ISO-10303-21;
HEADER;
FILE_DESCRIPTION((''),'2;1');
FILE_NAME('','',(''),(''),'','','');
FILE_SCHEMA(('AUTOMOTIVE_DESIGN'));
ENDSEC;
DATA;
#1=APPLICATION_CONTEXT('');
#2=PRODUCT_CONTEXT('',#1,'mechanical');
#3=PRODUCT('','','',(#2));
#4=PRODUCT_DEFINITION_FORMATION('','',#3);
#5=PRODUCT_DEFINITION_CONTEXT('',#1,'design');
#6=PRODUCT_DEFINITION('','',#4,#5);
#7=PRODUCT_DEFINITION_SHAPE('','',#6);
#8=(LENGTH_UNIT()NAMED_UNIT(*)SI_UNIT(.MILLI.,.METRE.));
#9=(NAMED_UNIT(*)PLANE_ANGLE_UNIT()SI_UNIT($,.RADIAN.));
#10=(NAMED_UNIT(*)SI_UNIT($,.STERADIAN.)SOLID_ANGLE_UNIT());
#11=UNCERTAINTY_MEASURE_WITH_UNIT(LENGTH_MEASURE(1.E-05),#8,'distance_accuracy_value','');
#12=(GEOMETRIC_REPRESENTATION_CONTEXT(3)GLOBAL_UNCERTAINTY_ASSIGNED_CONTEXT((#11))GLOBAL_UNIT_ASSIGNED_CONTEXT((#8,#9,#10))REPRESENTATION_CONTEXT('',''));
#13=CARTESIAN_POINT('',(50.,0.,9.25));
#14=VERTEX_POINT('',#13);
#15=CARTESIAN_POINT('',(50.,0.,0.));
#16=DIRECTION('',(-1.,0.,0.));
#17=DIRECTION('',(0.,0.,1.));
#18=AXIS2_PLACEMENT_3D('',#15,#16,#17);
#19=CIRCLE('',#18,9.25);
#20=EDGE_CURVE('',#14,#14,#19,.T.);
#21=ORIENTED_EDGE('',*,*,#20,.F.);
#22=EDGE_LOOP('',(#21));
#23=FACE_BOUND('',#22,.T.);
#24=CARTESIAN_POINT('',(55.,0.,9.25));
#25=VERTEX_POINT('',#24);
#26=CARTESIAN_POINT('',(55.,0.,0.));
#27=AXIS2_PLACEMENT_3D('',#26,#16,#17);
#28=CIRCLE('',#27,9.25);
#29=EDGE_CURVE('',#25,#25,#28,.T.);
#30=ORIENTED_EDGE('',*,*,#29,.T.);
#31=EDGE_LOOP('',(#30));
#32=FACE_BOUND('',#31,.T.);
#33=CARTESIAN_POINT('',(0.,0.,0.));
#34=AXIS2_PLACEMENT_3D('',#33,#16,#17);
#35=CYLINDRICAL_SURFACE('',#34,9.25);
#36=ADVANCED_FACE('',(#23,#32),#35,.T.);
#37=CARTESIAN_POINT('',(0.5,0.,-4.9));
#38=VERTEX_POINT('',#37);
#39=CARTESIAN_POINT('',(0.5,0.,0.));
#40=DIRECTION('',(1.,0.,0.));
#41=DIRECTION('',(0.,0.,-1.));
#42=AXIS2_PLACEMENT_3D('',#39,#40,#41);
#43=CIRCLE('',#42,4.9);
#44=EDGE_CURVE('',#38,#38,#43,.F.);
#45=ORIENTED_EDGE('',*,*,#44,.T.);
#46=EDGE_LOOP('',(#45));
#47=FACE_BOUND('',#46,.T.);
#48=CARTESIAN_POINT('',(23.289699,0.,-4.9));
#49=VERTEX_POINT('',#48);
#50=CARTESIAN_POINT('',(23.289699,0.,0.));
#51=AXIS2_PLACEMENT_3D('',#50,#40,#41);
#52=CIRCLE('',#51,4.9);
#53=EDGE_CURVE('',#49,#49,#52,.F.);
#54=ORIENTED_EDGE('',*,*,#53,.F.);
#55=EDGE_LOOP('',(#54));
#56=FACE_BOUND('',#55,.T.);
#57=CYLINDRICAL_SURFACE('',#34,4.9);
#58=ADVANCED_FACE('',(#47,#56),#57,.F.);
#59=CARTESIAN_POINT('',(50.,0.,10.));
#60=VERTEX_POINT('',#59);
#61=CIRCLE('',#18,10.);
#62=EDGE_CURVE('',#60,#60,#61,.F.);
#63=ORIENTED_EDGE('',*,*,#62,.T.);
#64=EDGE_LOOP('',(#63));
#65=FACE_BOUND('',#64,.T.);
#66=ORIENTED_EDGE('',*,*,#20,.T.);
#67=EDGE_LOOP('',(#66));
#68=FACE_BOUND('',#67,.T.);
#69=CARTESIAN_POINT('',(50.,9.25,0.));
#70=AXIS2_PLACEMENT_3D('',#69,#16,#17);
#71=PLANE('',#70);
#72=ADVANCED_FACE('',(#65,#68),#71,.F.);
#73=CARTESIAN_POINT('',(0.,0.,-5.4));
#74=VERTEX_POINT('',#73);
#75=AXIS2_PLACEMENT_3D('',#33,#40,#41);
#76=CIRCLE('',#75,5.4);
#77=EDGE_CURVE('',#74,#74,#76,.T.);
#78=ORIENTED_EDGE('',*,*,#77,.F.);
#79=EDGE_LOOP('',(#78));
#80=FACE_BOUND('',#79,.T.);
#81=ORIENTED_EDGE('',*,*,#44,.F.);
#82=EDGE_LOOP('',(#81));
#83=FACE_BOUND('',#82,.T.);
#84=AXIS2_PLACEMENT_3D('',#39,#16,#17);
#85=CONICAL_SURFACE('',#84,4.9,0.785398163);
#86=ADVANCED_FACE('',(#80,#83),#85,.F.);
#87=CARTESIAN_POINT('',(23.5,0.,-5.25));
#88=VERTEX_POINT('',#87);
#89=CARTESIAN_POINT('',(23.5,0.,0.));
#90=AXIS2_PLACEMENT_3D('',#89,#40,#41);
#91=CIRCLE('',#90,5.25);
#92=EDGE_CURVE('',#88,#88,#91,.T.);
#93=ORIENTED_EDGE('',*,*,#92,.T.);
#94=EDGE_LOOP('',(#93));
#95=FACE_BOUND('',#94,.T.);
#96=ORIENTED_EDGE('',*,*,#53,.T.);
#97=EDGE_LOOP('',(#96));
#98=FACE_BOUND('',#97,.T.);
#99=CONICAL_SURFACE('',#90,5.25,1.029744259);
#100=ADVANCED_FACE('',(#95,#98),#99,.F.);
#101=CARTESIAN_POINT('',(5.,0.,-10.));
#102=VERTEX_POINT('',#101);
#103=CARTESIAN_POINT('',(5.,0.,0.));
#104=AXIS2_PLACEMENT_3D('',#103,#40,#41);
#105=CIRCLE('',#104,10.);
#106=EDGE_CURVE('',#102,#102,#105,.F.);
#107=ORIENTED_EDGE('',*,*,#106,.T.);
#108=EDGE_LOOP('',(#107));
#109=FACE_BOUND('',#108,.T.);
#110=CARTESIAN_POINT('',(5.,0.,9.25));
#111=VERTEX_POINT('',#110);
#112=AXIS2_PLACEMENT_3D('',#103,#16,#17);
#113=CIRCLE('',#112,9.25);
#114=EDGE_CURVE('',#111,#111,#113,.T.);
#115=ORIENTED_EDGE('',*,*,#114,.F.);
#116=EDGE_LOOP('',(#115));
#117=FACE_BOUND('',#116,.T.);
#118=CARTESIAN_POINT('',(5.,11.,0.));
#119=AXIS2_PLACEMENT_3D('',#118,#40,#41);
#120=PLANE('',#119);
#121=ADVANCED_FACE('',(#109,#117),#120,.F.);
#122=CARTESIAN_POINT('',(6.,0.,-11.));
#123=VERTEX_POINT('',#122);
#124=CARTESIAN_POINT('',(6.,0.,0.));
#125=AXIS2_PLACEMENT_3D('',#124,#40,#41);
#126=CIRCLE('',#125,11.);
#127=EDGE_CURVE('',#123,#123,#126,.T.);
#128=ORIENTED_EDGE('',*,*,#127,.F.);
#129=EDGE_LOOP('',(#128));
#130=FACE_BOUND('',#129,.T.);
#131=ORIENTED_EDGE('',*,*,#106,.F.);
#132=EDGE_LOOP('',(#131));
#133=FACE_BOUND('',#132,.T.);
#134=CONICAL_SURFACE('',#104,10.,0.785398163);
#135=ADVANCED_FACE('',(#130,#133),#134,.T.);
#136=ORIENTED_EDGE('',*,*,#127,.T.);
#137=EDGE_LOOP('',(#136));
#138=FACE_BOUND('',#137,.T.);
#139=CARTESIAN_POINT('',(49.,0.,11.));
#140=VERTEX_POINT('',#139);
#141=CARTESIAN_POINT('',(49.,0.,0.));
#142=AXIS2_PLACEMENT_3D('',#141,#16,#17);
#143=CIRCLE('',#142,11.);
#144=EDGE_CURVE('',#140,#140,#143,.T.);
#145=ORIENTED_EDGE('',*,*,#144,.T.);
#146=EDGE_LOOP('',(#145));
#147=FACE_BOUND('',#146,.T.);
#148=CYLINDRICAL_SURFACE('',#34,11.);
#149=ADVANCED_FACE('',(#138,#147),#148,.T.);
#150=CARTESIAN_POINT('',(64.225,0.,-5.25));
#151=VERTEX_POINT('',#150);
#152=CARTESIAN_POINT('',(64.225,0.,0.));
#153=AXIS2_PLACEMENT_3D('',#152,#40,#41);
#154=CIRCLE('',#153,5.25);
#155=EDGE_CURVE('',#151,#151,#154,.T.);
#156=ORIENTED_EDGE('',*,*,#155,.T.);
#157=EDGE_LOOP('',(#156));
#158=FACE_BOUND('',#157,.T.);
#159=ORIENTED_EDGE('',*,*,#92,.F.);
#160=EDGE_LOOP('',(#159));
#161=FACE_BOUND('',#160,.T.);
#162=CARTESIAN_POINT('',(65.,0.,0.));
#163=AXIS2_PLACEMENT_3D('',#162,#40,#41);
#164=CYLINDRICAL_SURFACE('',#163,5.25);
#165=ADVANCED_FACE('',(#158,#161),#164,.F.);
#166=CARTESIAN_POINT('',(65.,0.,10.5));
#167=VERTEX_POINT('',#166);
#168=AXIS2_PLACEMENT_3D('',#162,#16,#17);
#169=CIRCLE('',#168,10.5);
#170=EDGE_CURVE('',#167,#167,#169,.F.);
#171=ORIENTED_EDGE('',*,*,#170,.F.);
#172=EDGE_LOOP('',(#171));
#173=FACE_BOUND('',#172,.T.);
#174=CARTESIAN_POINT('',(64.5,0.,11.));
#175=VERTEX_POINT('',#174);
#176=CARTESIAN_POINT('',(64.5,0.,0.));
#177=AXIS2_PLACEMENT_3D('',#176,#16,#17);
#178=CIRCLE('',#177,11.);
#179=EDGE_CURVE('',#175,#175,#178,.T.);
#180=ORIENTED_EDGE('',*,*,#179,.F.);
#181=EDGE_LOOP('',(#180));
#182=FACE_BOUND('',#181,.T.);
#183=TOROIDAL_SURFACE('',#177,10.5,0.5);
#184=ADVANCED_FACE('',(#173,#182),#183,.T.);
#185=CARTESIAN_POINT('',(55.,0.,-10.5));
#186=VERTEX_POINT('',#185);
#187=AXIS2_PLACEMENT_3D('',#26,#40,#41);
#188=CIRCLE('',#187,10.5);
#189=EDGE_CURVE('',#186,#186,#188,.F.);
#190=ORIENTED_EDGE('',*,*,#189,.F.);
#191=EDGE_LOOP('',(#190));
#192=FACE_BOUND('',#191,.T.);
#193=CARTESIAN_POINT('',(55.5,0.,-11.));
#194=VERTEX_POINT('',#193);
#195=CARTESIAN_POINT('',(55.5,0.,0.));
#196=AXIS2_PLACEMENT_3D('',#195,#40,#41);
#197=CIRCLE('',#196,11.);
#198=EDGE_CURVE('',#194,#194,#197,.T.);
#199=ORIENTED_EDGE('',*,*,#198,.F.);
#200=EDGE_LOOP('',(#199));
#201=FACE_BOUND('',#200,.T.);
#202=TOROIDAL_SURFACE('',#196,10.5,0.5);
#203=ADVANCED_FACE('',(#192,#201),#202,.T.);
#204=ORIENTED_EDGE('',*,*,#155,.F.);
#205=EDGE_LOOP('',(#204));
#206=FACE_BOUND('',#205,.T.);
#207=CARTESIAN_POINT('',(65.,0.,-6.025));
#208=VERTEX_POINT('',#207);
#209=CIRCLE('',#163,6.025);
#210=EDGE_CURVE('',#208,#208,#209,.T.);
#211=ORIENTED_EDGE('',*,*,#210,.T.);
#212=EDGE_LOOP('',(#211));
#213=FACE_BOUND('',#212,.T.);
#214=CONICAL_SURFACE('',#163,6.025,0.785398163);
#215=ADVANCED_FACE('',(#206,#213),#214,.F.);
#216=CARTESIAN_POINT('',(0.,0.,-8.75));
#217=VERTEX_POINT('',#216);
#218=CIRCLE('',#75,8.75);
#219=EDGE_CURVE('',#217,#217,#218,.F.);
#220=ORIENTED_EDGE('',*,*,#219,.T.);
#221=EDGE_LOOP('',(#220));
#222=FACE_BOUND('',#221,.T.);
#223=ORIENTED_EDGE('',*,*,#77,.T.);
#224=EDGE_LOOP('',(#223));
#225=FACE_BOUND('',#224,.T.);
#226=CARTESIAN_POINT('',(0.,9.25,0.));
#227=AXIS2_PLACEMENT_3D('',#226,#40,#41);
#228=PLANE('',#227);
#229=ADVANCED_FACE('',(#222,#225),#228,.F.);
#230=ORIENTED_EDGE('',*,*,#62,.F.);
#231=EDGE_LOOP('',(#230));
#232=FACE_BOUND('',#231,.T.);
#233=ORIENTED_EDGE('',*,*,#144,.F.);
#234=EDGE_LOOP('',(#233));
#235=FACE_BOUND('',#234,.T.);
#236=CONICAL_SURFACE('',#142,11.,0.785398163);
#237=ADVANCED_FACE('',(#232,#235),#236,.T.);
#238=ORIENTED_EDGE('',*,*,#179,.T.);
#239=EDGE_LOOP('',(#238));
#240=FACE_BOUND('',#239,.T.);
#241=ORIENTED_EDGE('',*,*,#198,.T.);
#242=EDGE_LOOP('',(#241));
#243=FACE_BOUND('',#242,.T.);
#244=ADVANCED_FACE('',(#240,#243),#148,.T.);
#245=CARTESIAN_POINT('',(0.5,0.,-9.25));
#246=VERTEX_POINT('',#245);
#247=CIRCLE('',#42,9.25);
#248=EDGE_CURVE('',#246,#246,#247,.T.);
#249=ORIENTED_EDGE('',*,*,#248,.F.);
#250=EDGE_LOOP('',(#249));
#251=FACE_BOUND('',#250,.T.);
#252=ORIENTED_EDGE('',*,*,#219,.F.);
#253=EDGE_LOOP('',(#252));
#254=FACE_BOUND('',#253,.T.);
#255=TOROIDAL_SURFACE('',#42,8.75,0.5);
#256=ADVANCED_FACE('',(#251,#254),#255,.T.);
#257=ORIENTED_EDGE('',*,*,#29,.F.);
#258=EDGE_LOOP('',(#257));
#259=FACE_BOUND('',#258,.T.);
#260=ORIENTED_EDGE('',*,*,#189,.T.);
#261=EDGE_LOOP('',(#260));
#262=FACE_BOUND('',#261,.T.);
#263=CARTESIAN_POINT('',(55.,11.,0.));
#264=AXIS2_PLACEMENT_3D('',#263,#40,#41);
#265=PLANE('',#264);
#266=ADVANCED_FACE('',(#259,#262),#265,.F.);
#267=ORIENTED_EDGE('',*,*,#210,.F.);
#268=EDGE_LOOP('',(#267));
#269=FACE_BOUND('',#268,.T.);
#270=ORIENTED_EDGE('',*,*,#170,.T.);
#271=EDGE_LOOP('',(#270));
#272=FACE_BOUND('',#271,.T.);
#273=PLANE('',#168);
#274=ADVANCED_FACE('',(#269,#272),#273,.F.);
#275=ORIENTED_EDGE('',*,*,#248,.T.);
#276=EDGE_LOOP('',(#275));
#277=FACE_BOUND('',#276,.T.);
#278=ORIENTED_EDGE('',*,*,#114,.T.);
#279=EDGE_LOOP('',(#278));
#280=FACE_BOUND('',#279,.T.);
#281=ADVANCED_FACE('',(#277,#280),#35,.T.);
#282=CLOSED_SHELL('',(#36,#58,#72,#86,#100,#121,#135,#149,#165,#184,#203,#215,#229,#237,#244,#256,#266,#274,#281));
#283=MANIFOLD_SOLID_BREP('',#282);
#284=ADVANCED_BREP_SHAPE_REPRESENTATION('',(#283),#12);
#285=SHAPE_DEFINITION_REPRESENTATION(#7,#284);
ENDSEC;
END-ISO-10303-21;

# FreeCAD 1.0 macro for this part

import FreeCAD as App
import Part
import Sketcher

V = App.Vector


def edges_at(feature, points):
    """Names of the edges that pass closest to the given points."""
    edges = feature.Shape.Edges
    near = lambda p: min(range(len(edges)), key=lambda i: edges[i].distToShape(Part.Vertex(*p))[0])
    return sorted({f"Edge{near(p) + 1}" for p in points})


def add_polygon(sketch, points):
    """Adds a closed chain of lines whose ends are joined by coincident constraints."""
    first, n = sketch.GeometryCount, len(points)
    for a, b in zip(points, points[1:] + points[:1]):
        sketch.addGeometry(Part.LineSegment(App.Vector(*a, 0), App.Vector(*b, 0)), False)
    for i in range(n):
        sketch.addConstraint(Sketcher.Constraint("Coincident", first + i, 2, first + (i + 1) % n, 1))

doc = App.newDocument("Part")
body = doc.addObject("PartDesign::Body", "Body")

sketch1 = body.newObject("Sketcher::SketchObject", "Sketch")
sketch1.AttachmentSupport = (doc.getObject("XY_Plane"), [""])
sketch1.MapMode = "FlatFace"
add_polygon(sketch1, [(0, 0), (65, 0), (65, 11), (55, 11), (55, 9.2), (50, 9.2), (50, 11), (5, 11), (5, 9.2), (0, 9.2)])
sketch1.addConstraint([
    Sketcher.Constraint("Horizontal", 0),
    Sketcher.Constraint("Vertical", 1),
    Sketcher.Constraint("Horizontal", 2),
    Sketcher.Constraint("Vertical", 3),
    Sketcher.Constraint("Horizontal", 4),
    Sketcher.Constraint("Vertical", 5),
    Sketcher.Constraint("Horizontal", 6),
    Sketcher.Constraint("Vertical", 7),
    Sketcher.Constraint("Horizontal", 8),
    Sketcher.Constraint("Vertical", 9),
    Sketcher.Constraint("Coincident", 9, 2, -1, 1),
    Sketcher.Constraint("Horizontal", 2, 2, 5, 2),
    Sketcher.Constraint("Horizontal", 4, 2, 7, 2),
    Sketcher.Constraint("Equal", 4, 8),
    Sketcher.Constraint("DistanceX", 0, 1, 0, 2, 65.0),
    Sketcher.Constraint("DistanceX", 2, 2, 2, 1, 10.0),
    Sketcher.Constraint("DistanceX", 4, 2, 4, 1, 5.0),
    Sketcher.Constraint("DistanceY", 1, 1, 1, 2, 11.0),
    Sketcher.Constraint("DistanceY", 3, 2, 3, 1, 1.75),
])
revolution = body.newObject("PartDesign::Revolution", "Revolution")
revolution.Profile = sketch1
revolution.ReferenceAxis = (sketch1, ["H_Axis"])
revolution.Angle = 360

sketch2 = body.newObject("Sketcher::SketchObject", "Sketch001")
sketch2.AttachmentSupport = (doc.getObject("YZ_Plane"), [""])
sketch2.MapMode = "FlatFace"
sketch2.AttachmentOffset = App.Placement(V(0, 0, 65), App.Rotation())
sketch2.addGeometry(Part.Circle(V(0, 0, 0), V(0, 0, 1), 5), False)
sketch2.addConstraint([
    Sketcher.Constraint("Coincident", 0, 3, -1, 1),
    Sketcher.Constraint("Diameter", 0, 10.5),
])
doc.recompute()
hole = body.newObject("PartDesign::Hole", "Hole")
hole.Profile = sketch2
hole.ThreadType = "None"
hole.Diameter = 10.5
hole.DepthType = "Dimension"
hole.Depth = 41.5
hole.DrillPoint = "Angled"
hole.DrillPointAngle = 118
hole.HoleCutType = "Countersink"
hole.HoleCutDiameter = 12.05
hole.HoleCutCountersinkAngle = 90

sketch3 = body.newObject("Sketcher::SketchObject", "Sketch002")
sketch3.AttachmentSupport = (doc.getObject("YZ_Plane"), [""])
sketch3.MapMode = "FlatFace"
sketch3.addGeometry(Part.Circle(V(0, 0, 0), V(0, 0, 1), 4.9), False)
sketch3.addConstraint([
    Sketcher.Constraint("Coincident", 0, 3, -1, 1),
    Sketcher.Constraint("Diameter", 0, 9.8),
])
doc.recompute()
hole2 = body.newObject("PartDesign::Hole", "Hole001")
hole2.Profile = sketch3
hole2.ThreadType = "None"
hole2.Diameter = 9.8
hole2.DepthType = "Dimension"
hole2.Depth = 25
hole2.DrillPoint = "Flat"
hole2.Reversed = True
doc.recompute()

chamfer = body.newObject("PartDesign::Chamfer", "Chamfer")
chamfer.Base = (hole2, edges_at(hole2, [(5, 0, -11)]))
chamfer.Size = 1
doc.recompute()

chamfer2 = body.newObject("PartDesign::Chamfer", "Chamfer001")
chamfer2.Base = (chamfer, edges_at(chamfer, [(50, 0, -11)]))
chamfer2.Size = 1
doc.recompute()

fillet = body.newObject("PartDesign::Fillet", "Fillet")
fillet.Base = (chamfer2, edges_at(chamfer2, [(65, 0, -11), (0, 0, -9.25), (55, 0, -11)]))
fillet.Radius = 0.5
doc.recompute()

chamfer3 = body.newObject("PartDesign::Chamfer", "Chamfer002")
chamfer3.Base = (fillet, edges_at(fillet, [(0, 0, 4.9)]))
chamfer3.Size = 0.5

doc.recompute()
